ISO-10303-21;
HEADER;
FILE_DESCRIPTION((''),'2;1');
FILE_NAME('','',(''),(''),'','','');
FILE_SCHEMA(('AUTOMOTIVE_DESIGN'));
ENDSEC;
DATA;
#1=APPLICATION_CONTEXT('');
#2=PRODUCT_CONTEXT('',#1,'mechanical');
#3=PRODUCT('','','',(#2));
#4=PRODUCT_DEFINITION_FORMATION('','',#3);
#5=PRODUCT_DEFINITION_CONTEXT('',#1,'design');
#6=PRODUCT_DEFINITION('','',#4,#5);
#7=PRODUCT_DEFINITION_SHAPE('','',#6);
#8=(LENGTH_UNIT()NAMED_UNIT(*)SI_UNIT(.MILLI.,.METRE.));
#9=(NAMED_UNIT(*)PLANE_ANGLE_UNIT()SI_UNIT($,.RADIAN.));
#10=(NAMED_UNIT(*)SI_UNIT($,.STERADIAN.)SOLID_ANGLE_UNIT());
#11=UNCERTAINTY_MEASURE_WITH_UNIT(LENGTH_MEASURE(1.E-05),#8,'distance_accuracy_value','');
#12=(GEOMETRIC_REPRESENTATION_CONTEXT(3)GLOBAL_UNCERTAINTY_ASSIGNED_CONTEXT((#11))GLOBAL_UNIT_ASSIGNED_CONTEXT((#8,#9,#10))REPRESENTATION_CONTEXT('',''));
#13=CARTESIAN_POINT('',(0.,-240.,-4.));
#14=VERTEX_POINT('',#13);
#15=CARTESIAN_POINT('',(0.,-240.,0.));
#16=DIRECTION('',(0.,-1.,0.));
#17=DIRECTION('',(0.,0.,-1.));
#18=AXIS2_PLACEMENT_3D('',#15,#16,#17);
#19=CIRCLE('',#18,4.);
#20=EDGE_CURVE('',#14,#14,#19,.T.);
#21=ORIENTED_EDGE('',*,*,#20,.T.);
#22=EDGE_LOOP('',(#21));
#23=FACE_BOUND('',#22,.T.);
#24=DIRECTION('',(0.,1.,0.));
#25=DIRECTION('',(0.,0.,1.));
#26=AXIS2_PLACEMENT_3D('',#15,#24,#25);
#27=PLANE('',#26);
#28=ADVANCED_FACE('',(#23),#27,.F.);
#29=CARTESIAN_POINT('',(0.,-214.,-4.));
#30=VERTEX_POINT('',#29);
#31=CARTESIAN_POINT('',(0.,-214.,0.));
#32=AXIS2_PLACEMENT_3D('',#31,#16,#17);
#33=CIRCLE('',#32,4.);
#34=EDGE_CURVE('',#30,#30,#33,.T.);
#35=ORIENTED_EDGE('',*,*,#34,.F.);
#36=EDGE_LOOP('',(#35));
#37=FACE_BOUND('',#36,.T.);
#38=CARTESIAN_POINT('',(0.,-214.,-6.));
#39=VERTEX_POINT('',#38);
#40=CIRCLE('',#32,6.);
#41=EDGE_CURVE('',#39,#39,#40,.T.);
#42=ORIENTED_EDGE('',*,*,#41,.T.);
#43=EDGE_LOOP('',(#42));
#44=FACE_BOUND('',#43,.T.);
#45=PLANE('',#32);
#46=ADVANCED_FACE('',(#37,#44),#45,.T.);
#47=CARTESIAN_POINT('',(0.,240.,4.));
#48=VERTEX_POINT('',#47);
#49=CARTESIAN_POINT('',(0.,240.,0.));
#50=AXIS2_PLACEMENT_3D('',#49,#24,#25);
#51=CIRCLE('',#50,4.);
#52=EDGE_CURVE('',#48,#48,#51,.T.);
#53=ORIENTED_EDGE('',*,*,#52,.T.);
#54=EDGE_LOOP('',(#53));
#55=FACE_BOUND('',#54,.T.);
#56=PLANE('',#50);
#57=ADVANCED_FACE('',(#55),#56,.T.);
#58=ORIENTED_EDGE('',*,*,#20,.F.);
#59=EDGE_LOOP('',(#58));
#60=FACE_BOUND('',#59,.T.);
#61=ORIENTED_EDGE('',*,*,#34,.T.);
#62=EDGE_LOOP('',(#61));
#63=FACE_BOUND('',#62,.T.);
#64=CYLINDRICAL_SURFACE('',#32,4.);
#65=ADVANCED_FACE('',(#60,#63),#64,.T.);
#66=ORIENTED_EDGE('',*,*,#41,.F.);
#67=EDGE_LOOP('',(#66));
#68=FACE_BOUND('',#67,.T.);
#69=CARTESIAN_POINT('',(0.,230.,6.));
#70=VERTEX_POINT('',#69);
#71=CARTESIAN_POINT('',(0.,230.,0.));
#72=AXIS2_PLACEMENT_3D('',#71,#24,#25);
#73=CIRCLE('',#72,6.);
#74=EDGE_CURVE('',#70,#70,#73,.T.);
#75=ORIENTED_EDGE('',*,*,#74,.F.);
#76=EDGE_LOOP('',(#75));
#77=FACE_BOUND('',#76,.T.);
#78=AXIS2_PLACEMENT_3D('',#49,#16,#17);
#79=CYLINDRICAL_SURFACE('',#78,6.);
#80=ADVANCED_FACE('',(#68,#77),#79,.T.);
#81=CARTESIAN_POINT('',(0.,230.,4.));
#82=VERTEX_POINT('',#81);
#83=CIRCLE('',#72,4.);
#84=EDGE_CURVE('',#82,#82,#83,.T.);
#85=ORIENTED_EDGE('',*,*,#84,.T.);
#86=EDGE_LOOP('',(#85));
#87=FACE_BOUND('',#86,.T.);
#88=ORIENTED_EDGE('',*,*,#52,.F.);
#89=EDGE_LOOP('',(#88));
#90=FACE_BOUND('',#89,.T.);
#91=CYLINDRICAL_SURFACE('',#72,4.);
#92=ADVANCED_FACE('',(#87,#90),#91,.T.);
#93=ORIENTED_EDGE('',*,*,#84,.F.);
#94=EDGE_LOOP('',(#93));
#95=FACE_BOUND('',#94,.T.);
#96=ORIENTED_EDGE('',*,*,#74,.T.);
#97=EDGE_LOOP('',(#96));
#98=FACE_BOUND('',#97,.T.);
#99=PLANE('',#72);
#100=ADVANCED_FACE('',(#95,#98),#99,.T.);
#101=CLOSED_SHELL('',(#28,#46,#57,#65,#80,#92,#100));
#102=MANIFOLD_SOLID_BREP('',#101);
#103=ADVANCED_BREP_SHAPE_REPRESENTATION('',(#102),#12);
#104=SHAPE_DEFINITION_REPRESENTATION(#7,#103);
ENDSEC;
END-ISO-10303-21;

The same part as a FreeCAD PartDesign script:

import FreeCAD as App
import Part
import Sketcher

V = App.Vector

doc = App.newDocument("Part")
params = doc.addObject("Spreadsheet::Sheet", "Params")
for row, (alias, value) in enumerate([
    ("sketch1_diameter", "12 mm"),
    ("pad1_length", "480 mm"),
    ("sketch2_diameter", "12 mm"),
    ("sketch2_diameter2", "8 mm"),
    ("pocket1_length", "10 mm"),
    ("sketch3_diameter", "12 mm"),
    ("sketch3_diameter2", "8 mm"),
    ("pocket2_length", "26 mm"),
], start=1):
    params.set(f"A{row}", alias)
    params.set(f"B{row}", "=" + value)
    params.setAlias(f"B{row}", alias)

body = doc.addObject("PartDesign::Body", "Body")

sketch1 = body.newObject("Sketcher::SketchObject", "Sketch")
sketch1.AttachmentSupport = (doc.getObject("XZ_Plane"), [""])
sketch1.MapMode = "FlatFace"
sketch1.addGeometry(Part.Circle(V(0, 0, 0), V(0, 0, 1), 6), False)
sketch1.addConstraint(Sketcher.Constraint("Coincident", 0, 3, -1, 1))
sketch1.addConstraint(Sketcher.Constraint("Diameter", 0, 12.0))
sketch1.setExpression("Constraints[1]", "Params.sketch1_diameter")
pad1 = body.newObject("PartDesign::Pad", "Pad")
pad1.Profile = sketch1
pad1.setExpression("Length", "Params.pad1_length")
pad1.Midplane = True

sketch2 = body.newObject("Sketcher::SketchObject", "Sketch001")
sketch2.AttachmentSupport = (doc.getObject("XZ_Plane"), [""])
sketch2.MapMode = "FlatFace"
sketch2.AttachmentOffset = App.Placement(V(0, 0, -240), App.Rotation())
sketch2.addGeometry(Part.Circle(V(0, 0, 0), V(0, 0, 1), 6), False)
sketch2.addGeometry(Part.Circle(V(0, 0, 0), V(0, 0, 1), 4), False)
sketch2.addConstraint(Sketcher.Constraint("Coincident", 0, 3, -1, 1))
sketch2.addConstraint(Sketcher.Constraint("Coincident", 1, 3, -1, 1))
sketch2.addConstraint(Sketcher.Constraint("Diameter", 0, 12.0))
sketch2.addConstraint(Sketcher.Constraint("Diameter", 1, 8.0))
sketch2.setExpression("Constraints[2]", "Params.sketch2_diameter")
sketch2.setExpression("Constraints[3]", "Params.sketch2_diameter2")
pocket1 = body.newObject("PartDesign::Pocket", "Pocket")
pocket1.Profile = sketch2
pocket1.setExpression("Length", "Params.pocket1_length")
pocket1.Reversed = True

sketch3 = body.newObject("Sketcher::SketchObject", "Sketch002")
sketch3.AttachmentSupport = (doc.getObject("XZ_Plane"), [""])
sketch3.MapMode = "FlatFace"
sketch3.AttachmentOffset = App.Placement(V(0, 0, 240), App.Rotation())
sketch3.addGeometry(Part.Circle(V(0, 0, 0), V(0, 0, 1), 6), False)
sketch3.addGeometry(Part.Circle(V(0, 0, 0), V(0, 0, 1), 4), False)
sketch3.addConstraint(Sketcher.Constraint("Coincident", 0, 3, -1, 1))
sketch3.addConstraint(Sketcher.Constraint("Coincident", 1, 3, -1, 1))
sketch3.addConstraint(Sketcher.Constraint("Diameter", 0, 12.0))
sketch3.addConstraint(Sketcher.Constraint("Diameter", 1, 8.0))
sketch3.setExpression("Constraints[2]", "Params.sketch3_diameter")
sketch3.setExpression("Constraints[3]", "Params.sketch3_diameter2")
pocket2 = body.newObject("PartDesign::Pocket", "Pocket001")
pocket2.Profile = sketch3
pocket2.setExpression("Length", "Params.pocket2_length")

doc.recompute()
